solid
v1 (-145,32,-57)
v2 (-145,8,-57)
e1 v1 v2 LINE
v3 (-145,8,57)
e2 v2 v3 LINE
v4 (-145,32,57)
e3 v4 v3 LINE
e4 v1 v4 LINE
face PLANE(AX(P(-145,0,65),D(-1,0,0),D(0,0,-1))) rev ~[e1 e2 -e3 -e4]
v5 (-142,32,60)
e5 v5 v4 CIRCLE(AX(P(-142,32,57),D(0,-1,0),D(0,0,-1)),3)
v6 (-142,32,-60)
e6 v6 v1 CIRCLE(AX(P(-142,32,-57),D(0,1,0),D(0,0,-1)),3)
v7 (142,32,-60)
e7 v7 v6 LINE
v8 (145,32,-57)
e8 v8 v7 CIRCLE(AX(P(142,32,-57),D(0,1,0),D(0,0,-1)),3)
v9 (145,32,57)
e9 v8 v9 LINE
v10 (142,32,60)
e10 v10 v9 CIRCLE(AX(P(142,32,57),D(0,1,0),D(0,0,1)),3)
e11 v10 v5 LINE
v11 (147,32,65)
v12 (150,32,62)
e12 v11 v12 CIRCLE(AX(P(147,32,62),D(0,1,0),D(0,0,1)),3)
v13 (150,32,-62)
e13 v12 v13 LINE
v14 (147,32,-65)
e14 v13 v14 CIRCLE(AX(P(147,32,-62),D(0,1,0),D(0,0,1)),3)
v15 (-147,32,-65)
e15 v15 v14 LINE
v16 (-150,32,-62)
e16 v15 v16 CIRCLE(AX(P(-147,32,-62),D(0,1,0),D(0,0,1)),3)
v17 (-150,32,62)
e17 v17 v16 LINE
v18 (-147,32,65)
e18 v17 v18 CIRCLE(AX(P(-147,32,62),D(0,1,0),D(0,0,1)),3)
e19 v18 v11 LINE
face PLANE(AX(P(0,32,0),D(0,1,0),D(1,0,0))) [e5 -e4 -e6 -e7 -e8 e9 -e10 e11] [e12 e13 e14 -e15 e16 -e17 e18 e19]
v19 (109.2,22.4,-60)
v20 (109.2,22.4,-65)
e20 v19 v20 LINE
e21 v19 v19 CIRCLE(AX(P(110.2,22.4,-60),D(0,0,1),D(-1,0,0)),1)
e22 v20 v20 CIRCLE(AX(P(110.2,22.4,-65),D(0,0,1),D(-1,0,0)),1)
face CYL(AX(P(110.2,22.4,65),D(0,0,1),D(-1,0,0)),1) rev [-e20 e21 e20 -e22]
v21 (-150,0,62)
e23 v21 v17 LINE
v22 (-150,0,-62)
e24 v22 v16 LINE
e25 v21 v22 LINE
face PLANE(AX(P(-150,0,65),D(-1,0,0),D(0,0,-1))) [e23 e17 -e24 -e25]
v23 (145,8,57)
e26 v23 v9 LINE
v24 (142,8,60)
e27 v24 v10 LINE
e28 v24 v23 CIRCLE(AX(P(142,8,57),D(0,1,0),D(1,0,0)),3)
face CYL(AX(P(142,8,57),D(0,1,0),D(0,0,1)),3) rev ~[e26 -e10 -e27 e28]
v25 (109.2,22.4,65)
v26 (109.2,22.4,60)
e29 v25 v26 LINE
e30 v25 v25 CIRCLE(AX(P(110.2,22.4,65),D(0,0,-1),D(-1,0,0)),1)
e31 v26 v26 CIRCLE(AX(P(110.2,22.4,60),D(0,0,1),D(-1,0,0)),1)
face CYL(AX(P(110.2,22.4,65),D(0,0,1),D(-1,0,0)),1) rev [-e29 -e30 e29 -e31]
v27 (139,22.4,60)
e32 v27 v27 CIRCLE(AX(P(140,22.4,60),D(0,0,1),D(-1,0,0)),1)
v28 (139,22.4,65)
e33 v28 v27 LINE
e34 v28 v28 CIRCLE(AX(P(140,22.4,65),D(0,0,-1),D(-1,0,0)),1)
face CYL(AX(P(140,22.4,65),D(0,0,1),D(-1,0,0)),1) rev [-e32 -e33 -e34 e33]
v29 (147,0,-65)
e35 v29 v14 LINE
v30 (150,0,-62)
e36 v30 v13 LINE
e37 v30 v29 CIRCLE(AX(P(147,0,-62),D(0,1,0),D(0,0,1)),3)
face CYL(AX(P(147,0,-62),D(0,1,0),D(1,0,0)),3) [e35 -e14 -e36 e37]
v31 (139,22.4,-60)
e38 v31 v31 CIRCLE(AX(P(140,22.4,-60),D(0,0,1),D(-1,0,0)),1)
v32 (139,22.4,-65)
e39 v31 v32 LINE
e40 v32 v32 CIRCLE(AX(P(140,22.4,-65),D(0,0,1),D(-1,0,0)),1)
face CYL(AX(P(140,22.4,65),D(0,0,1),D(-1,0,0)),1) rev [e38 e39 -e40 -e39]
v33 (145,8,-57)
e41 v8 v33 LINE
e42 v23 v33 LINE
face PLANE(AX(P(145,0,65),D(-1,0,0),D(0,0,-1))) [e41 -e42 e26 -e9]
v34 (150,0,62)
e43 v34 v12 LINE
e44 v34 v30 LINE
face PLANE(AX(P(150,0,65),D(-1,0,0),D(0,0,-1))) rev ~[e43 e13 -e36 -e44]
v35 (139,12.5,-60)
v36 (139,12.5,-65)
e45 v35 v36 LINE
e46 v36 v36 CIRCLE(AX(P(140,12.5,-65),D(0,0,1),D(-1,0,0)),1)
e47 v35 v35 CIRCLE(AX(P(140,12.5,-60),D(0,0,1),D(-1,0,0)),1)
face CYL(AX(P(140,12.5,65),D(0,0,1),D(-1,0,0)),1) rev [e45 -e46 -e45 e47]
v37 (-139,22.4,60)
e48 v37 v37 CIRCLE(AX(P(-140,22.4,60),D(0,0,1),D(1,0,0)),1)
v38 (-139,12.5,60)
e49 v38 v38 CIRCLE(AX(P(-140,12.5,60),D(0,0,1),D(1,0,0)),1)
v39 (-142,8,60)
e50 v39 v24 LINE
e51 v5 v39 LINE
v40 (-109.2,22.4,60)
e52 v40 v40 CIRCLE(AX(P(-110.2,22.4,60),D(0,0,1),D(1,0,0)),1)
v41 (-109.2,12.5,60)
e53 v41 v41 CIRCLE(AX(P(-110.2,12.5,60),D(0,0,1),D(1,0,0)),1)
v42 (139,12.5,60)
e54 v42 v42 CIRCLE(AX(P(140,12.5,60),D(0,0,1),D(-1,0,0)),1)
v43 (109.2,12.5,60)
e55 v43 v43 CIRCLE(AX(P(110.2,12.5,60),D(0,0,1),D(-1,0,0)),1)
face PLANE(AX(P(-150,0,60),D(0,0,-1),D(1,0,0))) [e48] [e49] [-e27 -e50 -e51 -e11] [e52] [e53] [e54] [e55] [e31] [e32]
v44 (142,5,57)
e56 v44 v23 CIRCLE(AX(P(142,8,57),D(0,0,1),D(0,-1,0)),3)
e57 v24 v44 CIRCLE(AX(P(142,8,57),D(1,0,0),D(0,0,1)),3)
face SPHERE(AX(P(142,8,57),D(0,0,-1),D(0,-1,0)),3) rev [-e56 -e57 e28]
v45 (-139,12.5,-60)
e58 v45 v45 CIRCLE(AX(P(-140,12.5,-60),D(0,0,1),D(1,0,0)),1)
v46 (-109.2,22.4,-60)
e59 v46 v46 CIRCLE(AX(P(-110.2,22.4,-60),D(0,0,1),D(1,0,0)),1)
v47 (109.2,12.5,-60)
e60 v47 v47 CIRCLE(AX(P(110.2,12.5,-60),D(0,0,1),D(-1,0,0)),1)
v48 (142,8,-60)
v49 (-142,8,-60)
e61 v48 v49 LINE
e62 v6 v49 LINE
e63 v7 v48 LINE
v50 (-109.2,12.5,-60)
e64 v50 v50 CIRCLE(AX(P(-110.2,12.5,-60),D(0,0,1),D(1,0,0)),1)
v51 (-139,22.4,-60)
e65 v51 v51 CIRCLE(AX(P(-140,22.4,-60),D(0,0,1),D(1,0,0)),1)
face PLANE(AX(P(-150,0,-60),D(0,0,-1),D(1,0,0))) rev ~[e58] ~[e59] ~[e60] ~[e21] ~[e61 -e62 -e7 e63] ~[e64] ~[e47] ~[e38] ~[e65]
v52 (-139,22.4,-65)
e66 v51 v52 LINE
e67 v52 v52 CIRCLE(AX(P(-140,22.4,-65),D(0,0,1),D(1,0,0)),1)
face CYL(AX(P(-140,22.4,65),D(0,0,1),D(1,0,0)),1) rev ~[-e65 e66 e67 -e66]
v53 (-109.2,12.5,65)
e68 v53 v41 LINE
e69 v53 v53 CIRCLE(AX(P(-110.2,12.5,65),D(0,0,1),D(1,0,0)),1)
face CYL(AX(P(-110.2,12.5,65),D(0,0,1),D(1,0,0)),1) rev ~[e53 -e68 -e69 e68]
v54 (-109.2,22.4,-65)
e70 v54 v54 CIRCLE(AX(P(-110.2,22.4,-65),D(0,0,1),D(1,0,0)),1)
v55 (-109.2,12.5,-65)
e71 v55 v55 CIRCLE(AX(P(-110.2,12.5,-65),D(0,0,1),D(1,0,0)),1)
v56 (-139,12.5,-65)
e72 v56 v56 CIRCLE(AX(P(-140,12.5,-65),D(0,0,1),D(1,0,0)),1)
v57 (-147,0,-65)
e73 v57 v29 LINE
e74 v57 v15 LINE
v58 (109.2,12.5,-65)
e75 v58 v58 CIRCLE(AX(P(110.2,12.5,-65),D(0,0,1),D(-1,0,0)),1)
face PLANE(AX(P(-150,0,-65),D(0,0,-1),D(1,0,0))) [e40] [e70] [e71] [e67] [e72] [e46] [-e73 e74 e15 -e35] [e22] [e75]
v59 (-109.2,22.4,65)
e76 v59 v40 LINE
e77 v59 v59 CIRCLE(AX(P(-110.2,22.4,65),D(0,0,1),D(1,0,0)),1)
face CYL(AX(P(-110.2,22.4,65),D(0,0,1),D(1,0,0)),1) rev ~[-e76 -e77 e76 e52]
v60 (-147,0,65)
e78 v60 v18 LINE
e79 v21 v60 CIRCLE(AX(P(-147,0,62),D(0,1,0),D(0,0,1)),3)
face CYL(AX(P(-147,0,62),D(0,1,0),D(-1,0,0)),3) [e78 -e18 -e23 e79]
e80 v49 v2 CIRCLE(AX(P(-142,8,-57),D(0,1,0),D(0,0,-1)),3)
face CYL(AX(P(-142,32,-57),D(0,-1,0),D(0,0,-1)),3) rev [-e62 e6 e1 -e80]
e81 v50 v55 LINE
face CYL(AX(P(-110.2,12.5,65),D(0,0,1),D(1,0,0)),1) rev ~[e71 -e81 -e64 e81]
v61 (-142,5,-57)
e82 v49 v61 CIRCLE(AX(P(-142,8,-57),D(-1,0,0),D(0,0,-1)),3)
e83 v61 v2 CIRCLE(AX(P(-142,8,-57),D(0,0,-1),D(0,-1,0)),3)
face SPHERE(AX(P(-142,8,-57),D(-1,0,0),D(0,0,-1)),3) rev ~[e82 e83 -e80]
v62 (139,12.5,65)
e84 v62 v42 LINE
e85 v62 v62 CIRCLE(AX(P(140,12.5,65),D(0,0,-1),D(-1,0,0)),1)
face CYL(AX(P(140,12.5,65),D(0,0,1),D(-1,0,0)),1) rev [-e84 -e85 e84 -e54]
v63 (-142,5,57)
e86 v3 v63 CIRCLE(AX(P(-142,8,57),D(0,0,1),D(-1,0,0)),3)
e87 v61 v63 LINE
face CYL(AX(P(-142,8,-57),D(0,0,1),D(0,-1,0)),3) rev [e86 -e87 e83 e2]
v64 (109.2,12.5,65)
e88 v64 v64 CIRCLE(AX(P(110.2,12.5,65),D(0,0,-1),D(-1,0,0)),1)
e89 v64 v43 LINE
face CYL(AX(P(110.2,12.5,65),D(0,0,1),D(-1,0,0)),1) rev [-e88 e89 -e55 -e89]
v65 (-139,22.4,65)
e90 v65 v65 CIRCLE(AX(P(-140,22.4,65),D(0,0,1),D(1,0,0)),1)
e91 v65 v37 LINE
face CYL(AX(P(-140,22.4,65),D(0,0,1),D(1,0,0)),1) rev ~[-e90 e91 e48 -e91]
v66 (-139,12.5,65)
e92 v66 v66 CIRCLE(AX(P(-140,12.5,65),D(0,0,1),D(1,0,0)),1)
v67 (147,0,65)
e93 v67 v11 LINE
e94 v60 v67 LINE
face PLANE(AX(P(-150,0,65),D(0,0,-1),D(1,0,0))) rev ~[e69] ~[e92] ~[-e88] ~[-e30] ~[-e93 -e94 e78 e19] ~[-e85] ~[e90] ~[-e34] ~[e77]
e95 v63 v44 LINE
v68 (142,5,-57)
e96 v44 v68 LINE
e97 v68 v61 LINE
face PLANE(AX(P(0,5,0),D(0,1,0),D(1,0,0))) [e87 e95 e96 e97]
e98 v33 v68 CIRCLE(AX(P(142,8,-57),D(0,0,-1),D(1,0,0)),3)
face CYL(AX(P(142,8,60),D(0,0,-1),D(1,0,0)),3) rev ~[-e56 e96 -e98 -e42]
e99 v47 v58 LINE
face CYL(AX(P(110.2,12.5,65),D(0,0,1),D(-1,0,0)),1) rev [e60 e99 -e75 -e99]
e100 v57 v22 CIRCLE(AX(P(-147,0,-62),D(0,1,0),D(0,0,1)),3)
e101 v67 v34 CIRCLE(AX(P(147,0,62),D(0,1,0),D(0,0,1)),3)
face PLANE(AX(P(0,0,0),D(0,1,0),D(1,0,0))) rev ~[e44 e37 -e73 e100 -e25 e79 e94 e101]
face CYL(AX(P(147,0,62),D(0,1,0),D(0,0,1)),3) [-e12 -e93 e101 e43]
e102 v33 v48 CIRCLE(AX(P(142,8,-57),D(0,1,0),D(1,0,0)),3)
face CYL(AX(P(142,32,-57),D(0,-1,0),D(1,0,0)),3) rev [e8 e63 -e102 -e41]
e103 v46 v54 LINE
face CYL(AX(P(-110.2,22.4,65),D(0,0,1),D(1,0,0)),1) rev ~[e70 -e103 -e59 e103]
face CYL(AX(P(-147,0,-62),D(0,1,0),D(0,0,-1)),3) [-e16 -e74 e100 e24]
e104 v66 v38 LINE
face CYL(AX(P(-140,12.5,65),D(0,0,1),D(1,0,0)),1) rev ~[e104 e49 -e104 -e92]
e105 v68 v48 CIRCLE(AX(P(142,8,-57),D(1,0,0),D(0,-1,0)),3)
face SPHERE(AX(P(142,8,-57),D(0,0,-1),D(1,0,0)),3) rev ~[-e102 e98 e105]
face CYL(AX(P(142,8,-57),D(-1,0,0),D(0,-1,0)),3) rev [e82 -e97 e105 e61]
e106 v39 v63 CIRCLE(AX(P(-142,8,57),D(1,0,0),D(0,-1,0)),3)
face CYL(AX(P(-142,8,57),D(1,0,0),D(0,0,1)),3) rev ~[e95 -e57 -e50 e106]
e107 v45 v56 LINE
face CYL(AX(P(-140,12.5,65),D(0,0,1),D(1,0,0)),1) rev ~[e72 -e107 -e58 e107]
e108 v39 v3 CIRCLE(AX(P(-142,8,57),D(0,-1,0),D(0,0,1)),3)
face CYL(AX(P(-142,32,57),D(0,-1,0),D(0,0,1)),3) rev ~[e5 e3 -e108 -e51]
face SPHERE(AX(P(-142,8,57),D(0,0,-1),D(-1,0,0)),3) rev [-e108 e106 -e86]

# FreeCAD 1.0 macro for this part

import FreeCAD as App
import Part
import Sketcher

V = App.Vector
Q = App.Units.Quantity


def edges_at(feature, points):
    """Names of the edges that pass closest to the given points."""
    edges = feature.Shape.Edges
    near = lambda p: min(range(len(edges)), key=lambda i: edges[i].distToShape(Part.Vertex(*p))[0])
    return sorted({f"Edge{near(p) + 1}" for p in points})


def faces_at(feature, points):
    """Names of the faces that lie closest to the given points."""
    faces = feature.Shape.Faces
    near = lambda p: min(range(len(faces)), key=lambda i: faces[i].distToShape(Part.Vertex(*p))[0])
    return sorted({f"Face{near(p) + 1}" for p in points})

doc = App.newDocument("Part")
body = doc.addObject("PartDesign::Body", "Body")

sketch1 = body.newObject("Sketcher::SketchObject", "Sketch")
sketch1.AttachmentSupport = (doc.getObject("XZ_Plane"), [""])
sketch1.MapMode = "FlatFace"
sketch1.addGeometry([
    Part.LineSegment(V(-150, -65, 0), V(-150, 65, 0)),
    Part.LineSegment(V(-150, 65, 0), V(150, 65, 0)),
    Part.LineSegment(V(150, 65, 0), V(150, -65, 0)),
    Part.LineSegment(V(150, -65, 0), V(-150, -65, 0)),
], False)
sketch1.addConstraint([
    Sketcher.Constraint("Coincident", 0, 2, 1, 1),
    Sketcher.Constraint("Coincident", 1, 2, 2, 1),
    Sketcher.Constraint("Coincident", 2, 2, 3, 1),
    Sketcher.Constraint("Coincident", 3, 2, 0, 1),
    Sketcher.Constraint("Vertical", 0),
    Sketcher.Constraint("Horizontal", 1),
    Sketcher.Constraint("Vertical", 2),
    Sketcher.Constraint("Horizontal", 3),
    Sketcher.Constraint("Symmetric", 0, 2, 2, 2, -1, 1),
    Sketcher.Constraint("DistanceX", 1, 1, 1, 2, Q("300 mm")),
    Sketcher.Constraint("DistanceY", 0, 1, 0, 2, Q("130 mm")),
])
pad1 = body.newObject("PartDesign::Pad", "Pad")
pad1.Profile = sketch1
pad1.Length = 32
pad1.Reversed = True
doc.recompute()

thickness = body.newObject("PartDesign::Thickness", "Thickness")
thickness.Base = (pad1, faces_at(pad1, [(0, 32, 0)]))
thickness.Value = 5
thickness.Reversed = True
thickness.Join = "Intersection"

sketch2 = body.newObject("Sketcher::SketchObject", "Sketch001")
sketch2.AttachmentSupport = (doc.getObject("XY_Plane"), [""])
sketch2.MapMode = "FlatFace"
sketch2.AttachmentOffset = App.Placement(V(0, 0, 65), App.Rotation())
sketch2.addGeometry([
    Part.Circle(V(-140, 22.4, 0), V(0, 0, 1), 1),
    Part.Circle(V(-110.2, 22.4, 0), V(0, 0, 1), 1),
    Part.Circle(V(-140, 12.5, 0), V(0, 0, 1), 1),
    Part.Circle(V(-110.2, 12.5, 0), V(0, 0, 1), 1),
], False)
sketch2.addConstraint([
    Sketcher.Constraint("Equal", 0, 1),
    Sketcher.Constraint("Equal", 1, 2),
    Sketcher.Constraint("Equal", 2, 3),
    Sketcher.Constraint("Horizontal", 0, 3, 1, 3),
    Sketcher.Constraint("Horizontal", 2, 3, 3, 3),
    Sketcher.Constraint("Vertical", 0, 3, 2, 3),
    Sketcher.Constraint("Vertical", 1, 3, 3, 3),
    Sketcher.Constraint("Diameter", 0, Q("2 mm")),
    Sketcher.Constraint("DistanceX", 0, 3, -1, 1, Q("140 mm")),
    Sketcher.Constraint("DistanceY", -1, 1, 0, 3, Q("22.4 mm")),
    Sketcher.Constraint("DistanceX", 1, 3, -1, 1, Q("110.2 mm")),
    Sketcher.Constraint("DistanceY", -1, 1, 2, 3, Q("12.5 mm")),
])
pocket1 = body.newObject("PartDesign::Pocket", "Pocket")
pocket1.Profile = sketch2
pocket1.Type = "ThroughAll"
doc.recompute()

mirrored = body.newObject("PartDesign::Mirrored", "Mirrored")
mirrored.Originals = [pocket1]
mirrored.MirrorPlane = (doc.getObject("YZ_Plane"), [""])
body.Tip = mirrored
doc.recompute()

fillet = body.newObject("PartDesign::Fillet", "Fillet")
fillet.Base = (mirrored, edges_at(mirrored, [(145, 5, 0)]))
fillet.Radius = 3
doc.recompute()

fillet2 = body.newObject("PartDesign::Fillet", "Fillet001")
fillet2.Base = (fillet, edges_at(fillet, [(145, 20, -60), (-1.5, 5, -60), (144.121, 5.879, -60)]))
fillet2.Radius = 3
doc.recompute()

fillet3 = body.newObject("PartDesign::Fillet", "Fillet002")
fillet3.Base = (fillet2, edges_at(fillet2, [(-145, 20, -60), (-145, 5, 1.5), (-145, 5.879, -59.121)]))
fillet3.Radius = 3
doc.recompute()

fillet4 = body.newObject("PartDesign::Fillet", "Fillet003")
fillet4.Base = (fillet3, edges_at(fillet3, [
    (0, 5, 60),
    (-144.121, 5.879, 60),
    (145, 20, 60),
    (-145, 20, 60),
    (144.121, 5.879, 60),
]))
fillet4.Radius = 3
doc.recompute()

fillet5 = body.newObject("PartDesign::Fillet", "Fillet004")
fillet5.Base = (fillet4, edges_at(fillet4, [(150, 16, -65)]))
fillet5.Radius = 3
doc.recompute()

fillet6 = body.newObject("PartDesign::Fillet", "Fillet005")
fillet6.Base = (fillet5, edges_at(fillet5, [(-150, 16, -65)]))
fillet6.Radius = 3
doc.recompute()

fillet7 = body.newObject("PartDesign::Fillet", "Fillet006")
fillet7.Base = (fillet6, edges_at(fillet6, [(-150, 16, 65)]))
fillet7.Radius = 3
doc.recompute()

fillet8 = body.newObject("PartDesign::Fillet", "Fillet007")
fillet8.Base = (fillet7, edges_at(fillet7, [(150, 16, 65)]))
fillet8.Radius = 3

doc.recompute()
